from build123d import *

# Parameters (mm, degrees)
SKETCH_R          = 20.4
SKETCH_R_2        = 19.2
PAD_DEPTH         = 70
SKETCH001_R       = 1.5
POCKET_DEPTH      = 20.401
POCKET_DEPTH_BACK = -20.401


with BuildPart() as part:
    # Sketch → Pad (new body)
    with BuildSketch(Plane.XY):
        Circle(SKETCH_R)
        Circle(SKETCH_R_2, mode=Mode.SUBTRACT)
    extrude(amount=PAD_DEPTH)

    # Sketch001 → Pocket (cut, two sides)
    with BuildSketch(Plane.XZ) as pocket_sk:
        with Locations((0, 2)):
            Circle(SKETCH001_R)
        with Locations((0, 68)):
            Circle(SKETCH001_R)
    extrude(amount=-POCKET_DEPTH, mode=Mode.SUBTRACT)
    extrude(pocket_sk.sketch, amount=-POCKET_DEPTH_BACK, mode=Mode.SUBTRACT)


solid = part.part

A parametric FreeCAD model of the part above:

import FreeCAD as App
import Part
import Sketcher
from FreeCAD import Vector

doc = App.newDocument("Part")
body = doc.addObject("PartDesign::Body", "Body")

sketch1 = doc.addObject("Sketcher::SketchObject", "Sketch")
body.addObject(sketch1)
sketch1.AttachmentSupport = (doc.XY_Plane, [""])
sketch1.MapMode = "FlatFace"
sketch1.addGeometry(Part.Circle(Vector(0, 0, 0), Vector(0, 0, 1), 20), False)
sketch1.addGeometry(Part.Circle(Vector(0, 0, 0), Vector(0, 0, 1), 19), False)
sketch1.addConstraint(Sketcher.Constraint("Coincident", 0, 3, -1, 1))
sketch1.addConstraint(Sketcher.Constraint("Coincident", 1, 3, -1, 1))
sketch1.addConstraint(Sketcher.Constraint("Diameter", 0, 40.8))
sketch1.addConstraint(Sketcher.Constraint("Diameter", 1, 38.4))
pad1 = doc.addObject("PartDesign::Pad", "Pad")
body.addObject(pad1)
pad1.Profile = sketch1
pad1.Length = 70

sketch2 = doc.addObject("Sketcher::SketchObject", "Sketch001")
body.addObject(sketch2)
sketch2.AttachmentSupport = (doc.XZ_Plane, [""])
sketch2.MapMode = "FlatFace"
sketch2.addGeometry(Part.Circle(Vector(0, 2, 0), Vector(0, 0, 1), 1.5), False)
sketch2.addGeometry(Part.Circle(Vector(0, 68, 0), Vector(0, 0, 1), 1.5), False)
sketch2.addConstraint(Sketcher.Constraint("Equal", 0, 1))
sketch2.addConstraint(Sketcher.Constraint("PointOnObject", 0, 3, -2))
sketch2.addConstraint(Sketcher.Constraint("PointOnObject", 1, 3, -2))
sketch2.addConstraint(Sketcher.Constraint("Diameter", 0, 3.0))
sketch2.addConstraint(Sketcher.Constraint("DistanceY", -1, 1, 0, 3, 2.0))
sketch2.addConstraint(Sketcher.Constraint("DistanceY", -1, 1, 1, 3, 68.0))
pocket1 = doc.addObject("PartDesign::Pocket", "Pocket")
body.addObject(pocket1)
pocket1.Profile = sketch2
pocket1.Type = "ThroughAll"
pocket1.Midplane = True

doc.recompute()
